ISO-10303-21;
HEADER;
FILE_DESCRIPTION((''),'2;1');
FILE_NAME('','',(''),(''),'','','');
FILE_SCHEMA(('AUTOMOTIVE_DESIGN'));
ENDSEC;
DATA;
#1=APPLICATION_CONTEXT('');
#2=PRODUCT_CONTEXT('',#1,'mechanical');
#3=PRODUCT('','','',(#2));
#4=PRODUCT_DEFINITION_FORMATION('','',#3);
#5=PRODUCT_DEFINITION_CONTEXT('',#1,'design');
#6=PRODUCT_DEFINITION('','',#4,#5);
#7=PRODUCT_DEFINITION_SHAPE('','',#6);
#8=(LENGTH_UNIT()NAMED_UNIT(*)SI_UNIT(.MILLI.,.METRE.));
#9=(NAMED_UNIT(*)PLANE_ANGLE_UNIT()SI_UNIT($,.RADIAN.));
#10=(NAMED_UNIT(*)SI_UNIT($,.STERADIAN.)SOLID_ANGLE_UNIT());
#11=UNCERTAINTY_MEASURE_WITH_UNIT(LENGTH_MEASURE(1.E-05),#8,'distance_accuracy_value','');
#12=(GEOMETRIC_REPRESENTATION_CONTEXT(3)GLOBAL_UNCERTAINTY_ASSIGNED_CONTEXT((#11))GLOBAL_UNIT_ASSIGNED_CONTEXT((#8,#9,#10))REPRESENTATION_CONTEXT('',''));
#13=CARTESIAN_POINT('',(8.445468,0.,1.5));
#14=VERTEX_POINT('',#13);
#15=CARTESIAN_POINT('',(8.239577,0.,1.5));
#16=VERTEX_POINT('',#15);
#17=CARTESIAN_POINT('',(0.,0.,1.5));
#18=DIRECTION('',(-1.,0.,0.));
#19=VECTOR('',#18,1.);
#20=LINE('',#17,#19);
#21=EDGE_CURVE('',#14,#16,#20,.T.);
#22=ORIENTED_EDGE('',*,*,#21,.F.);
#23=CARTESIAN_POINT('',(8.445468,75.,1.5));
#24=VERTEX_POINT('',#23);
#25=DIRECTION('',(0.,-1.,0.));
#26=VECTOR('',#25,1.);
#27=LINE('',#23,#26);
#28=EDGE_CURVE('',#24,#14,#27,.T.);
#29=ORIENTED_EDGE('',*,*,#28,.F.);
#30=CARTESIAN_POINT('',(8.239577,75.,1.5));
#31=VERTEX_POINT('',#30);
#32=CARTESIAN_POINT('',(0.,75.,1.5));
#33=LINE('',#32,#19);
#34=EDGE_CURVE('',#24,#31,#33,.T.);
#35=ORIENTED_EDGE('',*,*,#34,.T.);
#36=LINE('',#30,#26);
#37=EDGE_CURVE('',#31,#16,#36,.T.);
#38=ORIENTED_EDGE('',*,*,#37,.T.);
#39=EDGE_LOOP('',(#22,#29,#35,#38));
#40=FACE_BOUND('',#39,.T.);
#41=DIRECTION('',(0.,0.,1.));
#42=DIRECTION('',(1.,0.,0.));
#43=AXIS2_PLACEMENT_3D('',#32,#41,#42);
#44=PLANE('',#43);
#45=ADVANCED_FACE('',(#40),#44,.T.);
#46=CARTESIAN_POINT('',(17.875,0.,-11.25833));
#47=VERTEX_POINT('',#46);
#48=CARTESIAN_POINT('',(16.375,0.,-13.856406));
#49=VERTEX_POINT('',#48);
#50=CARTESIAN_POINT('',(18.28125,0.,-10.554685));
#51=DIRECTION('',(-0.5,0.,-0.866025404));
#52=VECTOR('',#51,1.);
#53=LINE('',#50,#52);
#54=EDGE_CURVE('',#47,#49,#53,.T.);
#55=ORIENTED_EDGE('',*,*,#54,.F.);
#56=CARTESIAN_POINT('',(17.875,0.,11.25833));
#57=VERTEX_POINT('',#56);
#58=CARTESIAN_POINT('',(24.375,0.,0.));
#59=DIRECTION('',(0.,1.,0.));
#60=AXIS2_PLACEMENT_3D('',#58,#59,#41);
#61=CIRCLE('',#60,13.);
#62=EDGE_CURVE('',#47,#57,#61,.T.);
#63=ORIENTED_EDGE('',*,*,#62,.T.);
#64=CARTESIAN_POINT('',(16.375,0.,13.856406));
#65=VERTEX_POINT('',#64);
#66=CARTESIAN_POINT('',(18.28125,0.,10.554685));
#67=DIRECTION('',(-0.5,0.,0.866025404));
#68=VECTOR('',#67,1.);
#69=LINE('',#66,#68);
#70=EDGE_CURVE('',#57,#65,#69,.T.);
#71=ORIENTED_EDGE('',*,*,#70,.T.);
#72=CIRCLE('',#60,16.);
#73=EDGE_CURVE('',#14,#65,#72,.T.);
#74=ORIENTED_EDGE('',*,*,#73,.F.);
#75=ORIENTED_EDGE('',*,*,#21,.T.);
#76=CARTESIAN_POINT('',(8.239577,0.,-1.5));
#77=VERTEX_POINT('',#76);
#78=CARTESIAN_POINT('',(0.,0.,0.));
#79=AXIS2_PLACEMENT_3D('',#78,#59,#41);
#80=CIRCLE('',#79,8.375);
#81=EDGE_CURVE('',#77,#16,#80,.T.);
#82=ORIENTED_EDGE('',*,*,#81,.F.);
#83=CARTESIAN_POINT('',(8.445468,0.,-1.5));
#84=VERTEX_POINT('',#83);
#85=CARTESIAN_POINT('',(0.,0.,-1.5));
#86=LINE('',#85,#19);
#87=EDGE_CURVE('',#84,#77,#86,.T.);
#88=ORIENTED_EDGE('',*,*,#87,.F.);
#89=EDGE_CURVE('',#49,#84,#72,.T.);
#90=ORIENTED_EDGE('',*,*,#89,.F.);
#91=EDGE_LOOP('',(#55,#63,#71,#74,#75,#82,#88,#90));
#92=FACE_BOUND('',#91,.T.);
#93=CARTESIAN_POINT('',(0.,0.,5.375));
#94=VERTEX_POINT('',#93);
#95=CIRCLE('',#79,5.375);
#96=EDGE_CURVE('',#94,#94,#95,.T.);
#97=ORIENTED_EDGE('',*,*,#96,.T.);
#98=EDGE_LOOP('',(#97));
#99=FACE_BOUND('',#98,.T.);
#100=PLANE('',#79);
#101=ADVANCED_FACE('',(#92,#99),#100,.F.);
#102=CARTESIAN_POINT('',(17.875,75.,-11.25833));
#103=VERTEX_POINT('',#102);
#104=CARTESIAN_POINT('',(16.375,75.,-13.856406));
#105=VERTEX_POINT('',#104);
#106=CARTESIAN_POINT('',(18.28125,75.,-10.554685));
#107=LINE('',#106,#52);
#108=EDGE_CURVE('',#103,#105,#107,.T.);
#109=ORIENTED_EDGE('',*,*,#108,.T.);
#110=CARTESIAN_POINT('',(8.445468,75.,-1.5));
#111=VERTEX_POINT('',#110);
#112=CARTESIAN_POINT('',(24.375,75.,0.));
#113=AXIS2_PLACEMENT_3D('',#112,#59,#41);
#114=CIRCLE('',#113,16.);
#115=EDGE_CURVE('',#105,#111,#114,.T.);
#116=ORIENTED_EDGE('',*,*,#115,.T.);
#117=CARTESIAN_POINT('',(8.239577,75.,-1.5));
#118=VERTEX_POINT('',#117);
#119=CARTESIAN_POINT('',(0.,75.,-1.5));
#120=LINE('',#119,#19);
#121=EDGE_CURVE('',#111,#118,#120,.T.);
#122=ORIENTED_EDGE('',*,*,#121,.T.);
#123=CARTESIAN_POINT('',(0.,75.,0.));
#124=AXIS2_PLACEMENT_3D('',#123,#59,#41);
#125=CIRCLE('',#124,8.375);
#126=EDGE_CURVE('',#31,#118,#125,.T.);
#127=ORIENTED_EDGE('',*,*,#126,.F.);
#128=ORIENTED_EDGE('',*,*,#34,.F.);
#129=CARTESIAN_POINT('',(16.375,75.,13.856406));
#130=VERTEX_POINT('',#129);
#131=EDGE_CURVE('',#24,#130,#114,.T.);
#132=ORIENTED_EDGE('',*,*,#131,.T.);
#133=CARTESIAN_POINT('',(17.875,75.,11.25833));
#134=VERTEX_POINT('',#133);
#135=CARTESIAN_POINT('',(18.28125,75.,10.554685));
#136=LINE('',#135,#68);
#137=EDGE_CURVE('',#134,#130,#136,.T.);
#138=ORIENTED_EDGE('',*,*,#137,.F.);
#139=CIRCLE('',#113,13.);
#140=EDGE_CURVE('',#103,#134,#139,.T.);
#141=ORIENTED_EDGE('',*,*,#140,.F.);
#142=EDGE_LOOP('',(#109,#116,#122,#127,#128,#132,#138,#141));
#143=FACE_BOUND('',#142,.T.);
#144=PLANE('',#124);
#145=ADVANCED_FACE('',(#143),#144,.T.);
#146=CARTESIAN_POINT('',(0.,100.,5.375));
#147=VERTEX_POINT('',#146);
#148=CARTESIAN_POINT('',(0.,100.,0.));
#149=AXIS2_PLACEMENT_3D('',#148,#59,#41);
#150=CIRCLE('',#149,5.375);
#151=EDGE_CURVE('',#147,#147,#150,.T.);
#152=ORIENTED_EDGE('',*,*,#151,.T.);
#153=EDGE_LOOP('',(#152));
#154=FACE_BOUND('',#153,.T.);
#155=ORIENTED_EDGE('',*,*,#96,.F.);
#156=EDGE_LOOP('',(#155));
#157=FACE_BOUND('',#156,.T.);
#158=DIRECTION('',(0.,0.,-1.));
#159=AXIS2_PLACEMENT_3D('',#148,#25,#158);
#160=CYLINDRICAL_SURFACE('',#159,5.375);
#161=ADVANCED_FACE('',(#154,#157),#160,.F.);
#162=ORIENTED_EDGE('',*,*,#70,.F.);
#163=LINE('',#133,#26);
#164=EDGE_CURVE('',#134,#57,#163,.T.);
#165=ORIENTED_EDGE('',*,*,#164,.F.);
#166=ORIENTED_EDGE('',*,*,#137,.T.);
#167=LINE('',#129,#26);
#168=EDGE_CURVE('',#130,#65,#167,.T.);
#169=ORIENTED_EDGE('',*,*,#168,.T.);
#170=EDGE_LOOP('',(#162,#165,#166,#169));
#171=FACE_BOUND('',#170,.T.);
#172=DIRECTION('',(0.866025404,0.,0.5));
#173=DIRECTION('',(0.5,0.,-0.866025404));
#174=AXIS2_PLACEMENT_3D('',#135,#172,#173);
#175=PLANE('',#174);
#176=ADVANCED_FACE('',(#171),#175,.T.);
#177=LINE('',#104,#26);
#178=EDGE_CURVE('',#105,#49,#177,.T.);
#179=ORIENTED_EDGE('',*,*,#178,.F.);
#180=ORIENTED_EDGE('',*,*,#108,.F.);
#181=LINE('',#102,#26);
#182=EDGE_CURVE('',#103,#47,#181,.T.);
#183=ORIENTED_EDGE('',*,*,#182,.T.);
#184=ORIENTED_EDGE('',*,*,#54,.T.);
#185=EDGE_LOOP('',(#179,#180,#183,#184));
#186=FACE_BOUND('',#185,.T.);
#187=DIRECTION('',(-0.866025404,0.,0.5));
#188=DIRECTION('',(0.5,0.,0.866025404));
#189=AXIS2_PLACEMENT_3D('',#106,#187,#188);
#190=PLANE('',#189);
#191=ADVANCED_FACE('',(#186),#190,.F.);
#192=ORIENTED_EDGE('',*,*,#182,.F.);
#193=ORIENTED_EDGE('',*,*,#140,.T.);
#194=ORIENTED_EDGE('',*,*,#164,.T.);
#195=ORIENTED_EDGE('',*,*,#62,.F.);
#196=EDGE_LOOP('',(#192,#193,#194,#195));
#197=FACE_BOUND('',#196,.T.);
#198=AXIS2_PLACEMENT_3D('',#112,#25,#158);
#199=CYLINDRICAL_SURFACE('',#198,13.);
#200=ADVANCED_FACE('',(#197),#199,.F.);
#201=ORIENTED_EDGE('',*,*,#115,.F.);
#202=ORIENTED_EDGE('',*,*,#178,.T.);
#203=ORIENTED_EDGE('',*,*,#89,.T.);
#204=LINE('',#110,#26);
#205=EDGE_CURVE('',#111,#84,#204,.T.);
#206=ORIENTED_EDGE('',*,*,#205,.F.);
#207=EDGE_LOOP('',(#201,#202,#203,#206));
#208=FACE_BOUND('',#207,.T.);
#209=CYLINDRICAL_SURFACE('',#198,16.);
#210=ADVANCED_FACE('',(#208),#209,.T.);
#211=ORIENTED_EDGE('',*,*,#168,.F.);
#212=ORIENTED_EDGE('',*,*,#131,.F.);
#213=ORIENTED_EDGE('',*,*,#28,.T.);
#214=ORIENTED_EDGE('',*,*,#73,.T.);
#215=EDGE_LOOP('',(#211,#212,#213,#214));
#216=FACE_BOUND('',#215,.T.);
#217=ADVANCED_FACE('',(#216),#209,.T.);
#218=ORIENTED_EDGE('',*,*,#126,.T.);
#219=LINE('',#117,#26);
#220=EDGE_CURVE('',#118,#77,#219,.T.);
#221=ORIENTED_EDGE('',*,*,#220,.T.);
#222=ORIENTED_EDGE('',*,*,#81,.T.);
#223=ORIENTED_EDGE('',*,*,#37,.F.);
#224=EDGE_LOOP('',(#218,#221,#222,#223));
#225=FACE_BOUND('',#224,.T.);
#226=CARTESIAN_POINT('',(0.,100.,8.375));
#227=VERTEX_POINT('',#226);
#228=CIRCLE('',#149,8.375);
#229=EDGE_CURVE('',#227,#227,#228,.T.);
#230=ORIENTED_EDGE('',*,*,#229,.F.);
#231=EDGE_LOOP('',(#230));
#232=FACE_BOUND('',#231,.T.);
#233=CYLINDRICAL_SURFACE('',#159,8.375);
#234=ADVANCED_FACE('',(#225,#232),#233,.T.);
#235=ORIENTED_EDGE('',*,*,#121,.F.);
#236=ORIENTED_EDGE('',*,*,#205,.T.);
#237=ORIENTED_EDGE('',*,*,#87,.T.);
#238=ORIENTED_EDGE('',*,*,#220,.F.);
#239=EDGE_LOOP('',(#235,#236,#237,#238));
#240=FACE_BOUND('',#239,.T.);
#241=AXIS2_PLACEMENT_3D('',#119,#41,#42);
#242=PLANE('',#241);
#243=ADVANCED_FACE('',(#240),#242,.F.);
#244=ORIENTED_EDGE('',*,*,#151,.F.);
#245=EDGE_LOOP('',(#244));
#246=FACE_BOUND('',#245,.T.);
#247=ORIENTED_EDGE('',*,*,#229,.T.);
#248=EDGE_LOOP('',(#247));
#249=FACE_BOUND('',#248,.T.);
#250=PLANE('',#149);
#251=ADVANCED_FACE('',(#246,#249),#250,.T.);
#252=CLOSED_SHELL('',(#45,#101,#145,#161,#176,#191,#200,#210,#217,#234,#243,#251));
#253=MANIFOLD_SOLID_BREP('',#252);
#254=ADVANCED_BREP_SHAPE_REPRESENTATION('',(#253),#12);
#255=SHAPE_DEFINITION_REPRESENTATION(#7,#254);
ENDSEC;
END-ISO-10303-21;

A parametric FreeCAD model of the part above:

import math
import FreeCAD as App
import Part
import Sketcher
Q = App.Units.Quantity

doc = App.newDocument("Part")
body = doc.addObject("PartDesign::Body", "Body")

sketch1 = doc.addObject("Sketcher::SketchObject", "Sketch")
body.addObject(sketch1)
sketch1.AttachmentSupport = (doc.XZ_Plane, [""])
sketch1.MapMode = "FlatFace"
sketch1.addGeometry([
    Part.Circle(App.Vector(0, 0, 0), App.Vector(0, 0, 1), 8),
    Part.Circle(App.Vector(0, 0, 0), App.Vector(0, 0, 1), 5),
], False)
sketch1.addConstraint([
    Sketcher.Constraint("Coincident", 0, 3, -1, 1),
    Sketcher.Constraint("Coincident", 1, 3, -1, 1),
    Sketcher.Constraint("Diameter", 0, 16.75),
    Sketcher.Constraint("Diameter", 1, 10.75),
])
pad1 = doc.addObject("PartDesign::Pad", "Pad")
body.addObject(pad1)
pad1.Profile = sketch1
pad1.Length = 100
pad1.Reversed = True

sketch2 = doc.addObject("Sketcher::SketchObject", "Sketch001")
body.addObject(sketch2)
sketch2.AttachmentSupport = (doc.XZ_Plane, [""])
sketch2.MapMode = "FlatFace"
sketch2.addGeometry([
    Part.LineSegment(App.Vector(8.45, -1.5, 0), App.Vector(8.24, -1.5, 0)),
    Part.ArcOfCircle(Part.Circle(App.Vector(0, 0, 0), App.Vector(0, 0, 1), 8.38), math.radians(-10), math.radians(10)),
    Part.LineSegment(App.Vector(8.24, 1.5, 0), App.Vector(8.45, 1.5, 0)),
    Part.ArcOfCircle(Part.Circle(App.Vector(24.38, 0, 0), App.Vector(0, 0, 1), 16), math.radians(120), math.radians(175)),
    Part.LineSegment(App.Vector(16.38, 13.86, 0), App.Vector(17.88, 11.26, 0)),
    Part.ArcOfCircle(Part.Circle(App.Vector(24.38, 0, 0), App.Vector(0, 0, 1), 13), math.radians(120), math.radians(240)),
    Part.LineSegment(App.Vector(17.88, -11.26, 0), App.Vector(16.38, -13.86, 0)),
    Part.ArcOfCircle(Part.Circle(App.Vector(24.38, 0, 0), App.Vector(0, 0, 1), 16), math.radians(-175), math.radians(-120)),
], False)
sketch2.addConstraint([
    Sketcher.Constraint("Coincident", 0, 2, 1, 1),
    Sketcher.Constraint("Coincident", 1, 2, 2, 1),
    Sketcher.Constraint("Coincident", 2, 2, 3, 2),
    Sketcher.Constraint("Coincident", 3, 1, 4, 1),
    Sketcher.Constraint("Coincident", 4, 2, 5, 1),
    Sketcher.Constraint("Coincident", 5, 2, 6, 1),
    Sketcher.Constraint("Coincident", 6, 2, 7, 2),
    Sketcher.Constraint("Coincident", 7, 1, 0, 1),
    Sketcher.Constraint("Horizontal", 0),
    Sketcher.Constraint("Horizontal", 2),
    Sketcher.Constraint("Coincident", 1, 3, -1, 1),
    Sketcher.Constraint("Coincident", 5, 3, 3, 3),
    Sketcher.Constraint("Coincident", 7, 3, 3, 3),
    Sketcher.Constraint("Equal", 3, 7),
    Sketcher.Constraint("Symmetric", 4, 2, 5, 2, -1),
    Sketcher.Constraint("Vertical", 0, 2, 1, 2),
    Sketcher.Constraint("Vertical", 3, 1, 6, 2),
    Sketcher.Constraint("Radius", 3, 16.0),
    Sketcher.Constraint("Radius", 5, 13.0),
    Sketcher.Constraint("Angle", 4, Q("-60 deg")),
    Sketcher.Constraint("Radius", 1, 8.375),
    Sketcher.Constraint("DistanceY", 0, 2, 1, 2, 3.0),
    Sketcher.Constraint("DistanceX", 3, 1, 5, 3, 8.0),
    Sketcher.Constraint("DistanceX", -1, 1, 3, 3, 24.375),
])
pad2 = doc.addObject("PartDesign::Pad", "Pad001")
body.addObject(pad2)
pad2.Profile = sketch2
pad2.Length = 75
pad2.Reversed = True

doc.recompute()
